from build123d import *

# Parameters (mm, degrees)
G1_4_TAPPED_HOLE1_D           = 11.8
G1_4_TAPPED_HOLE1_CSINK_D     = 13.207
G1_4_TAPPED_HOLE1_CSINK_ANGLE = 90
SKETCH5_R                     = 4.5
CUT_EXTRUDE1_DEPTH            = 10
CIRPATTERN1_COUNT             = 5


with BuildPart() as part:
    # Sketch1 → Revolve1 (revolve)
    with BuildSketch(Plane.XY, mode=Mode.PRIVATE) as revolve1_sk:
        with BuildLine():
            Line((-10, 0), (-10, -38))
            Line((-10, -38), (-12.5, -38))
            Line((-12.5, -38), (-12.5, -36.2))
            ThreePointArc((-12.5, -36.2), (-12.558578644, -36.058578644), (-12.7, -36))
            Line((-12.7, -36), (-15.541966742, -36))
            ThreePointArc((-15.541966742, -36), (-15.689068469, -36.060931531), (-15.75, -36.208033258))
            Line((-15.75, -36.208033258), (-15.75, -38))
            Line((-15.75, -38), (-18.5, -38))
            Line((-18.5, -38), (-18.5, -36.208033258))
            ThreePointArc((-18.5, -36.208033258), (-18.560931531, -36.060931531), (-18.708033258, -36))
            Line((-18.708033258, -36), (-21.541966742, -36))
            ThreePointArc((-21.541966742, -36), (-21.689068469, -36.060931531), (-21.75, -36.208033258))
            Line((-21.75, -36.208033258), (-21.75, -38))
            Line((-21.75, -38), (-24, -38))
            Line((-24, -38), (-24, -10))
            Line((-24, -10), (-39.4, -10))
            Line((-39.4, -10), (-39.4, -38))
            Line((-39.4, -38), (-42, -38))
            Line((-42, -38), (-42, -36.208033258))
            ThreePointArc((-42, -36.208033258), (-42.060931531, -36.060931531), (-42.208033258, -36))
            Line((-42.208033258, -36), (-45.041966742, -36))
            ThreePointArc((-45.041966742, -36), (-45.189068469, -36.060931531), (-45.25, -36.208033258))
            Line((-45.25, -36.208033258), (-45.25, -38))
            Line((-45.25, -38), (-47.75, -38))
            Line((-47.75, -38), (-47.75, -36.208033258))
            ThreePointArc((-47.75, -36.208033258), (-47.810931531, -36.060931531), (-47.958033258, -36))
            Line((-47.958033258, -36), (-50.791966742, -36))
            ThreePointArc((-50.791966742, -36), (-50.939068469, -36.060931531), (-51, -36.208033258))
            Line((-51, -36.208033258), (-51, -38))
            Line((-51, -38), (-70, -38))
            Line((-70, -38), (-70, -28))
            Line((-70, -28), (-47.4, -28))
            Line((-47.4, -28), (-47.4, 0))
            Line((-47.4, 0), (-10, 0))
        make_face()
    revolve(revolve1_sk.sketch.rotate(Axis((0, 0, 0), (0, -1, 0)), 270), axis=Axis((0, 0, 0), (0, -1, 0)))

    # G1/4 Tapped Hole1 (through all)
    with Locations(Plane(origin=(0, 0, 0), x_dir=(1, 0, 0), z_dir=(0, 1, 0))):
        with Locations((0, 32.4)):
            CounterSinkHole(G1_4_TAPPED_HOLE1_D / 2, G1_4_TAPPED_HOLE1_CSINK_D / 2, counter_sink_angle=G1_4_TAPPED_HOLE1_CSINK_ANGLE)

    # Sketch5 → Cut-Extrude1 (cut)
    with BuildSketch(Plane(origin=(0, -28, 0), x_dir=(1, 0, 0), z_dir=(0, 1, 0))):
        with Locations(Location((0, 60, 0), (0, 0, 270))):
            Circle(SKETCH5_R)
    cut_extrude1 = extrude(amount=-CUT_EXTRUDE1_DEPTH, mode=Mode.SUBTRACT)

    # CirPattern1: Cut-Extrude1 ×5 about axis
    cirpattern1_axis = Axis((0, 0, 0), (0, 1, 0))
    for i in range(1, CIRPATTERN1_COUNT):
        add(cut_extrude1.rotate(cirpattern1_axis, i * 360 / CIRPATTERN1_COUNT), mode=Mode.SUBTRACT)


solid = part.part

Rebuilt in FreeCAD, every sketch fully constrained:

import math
import FreeCAD as App
import Part
import Sketcher
Q = App.Units.Quantity

doc = App.newDocument("Part")
body = doc.addObject("PartDesign::Body", "Body")

sketch1 = body.newObject("Sketcher::SketchObject", "Sketch")
sketch1.AttachmentSupport = (doc.getObject("XY_Plane"), [""])
sketch1.MapMode = "FlatFace"
sketch1.addGeometry([
    Part.LineSegment(App.Vector(-10, -38, 0), App.Vector(-10, 0, 0)),
    Part.LineSegment(App.Vector(-10, 0, 0), App.Vector(-47.4, 0, 0)),
    Part.LineSegment(App.Vector(-47.4, 0, 0), App.Vector(-47.4, -28, 0)),
    Part.LineSegment(App.Vector(-47.4, -28, 0), App.Vector(-70, -28, 0)),
    Part.LineSegment(App.Vector(-70, -28, 0), App.Vector(-70, -38, 0)),
    Part.LineSegment(App.Vector(-70, -38, 0), App.Vector(-51, -38, 0)),
    Part.LineSegment(App.Vector(-51, -38, 0), App.Vector(-51, -36.21, 0)),
    Part.ArcOfCircle(Part.Circle(App.Vector(-50.79, -36.21, 0), App.Vector(0, 0, 1), 0.21), math.radians(90), math.radians(180)),
    Part.LineSegment(App.Vector(-50.79, -36, 0), App.Vector(-47.96, -36, 0)),
    Part.ArcOfCircle(Part.Circle(App.Vector(-47.96, -36.21, 0), App.Vector(0, 0, 1), 0.21), math.radians(0), math.radians(90)),
    Part.LineSegment(App.Vector(-47.75, -36.21, 0), App.Vector(-47.75, -38, 0)),
    Part.LineSegment(App.Vector(-47.75, -38, 0), App.Vector(-45.25, -38, 0)),
    Part.LineSegment(App.Vector(-45.25, -38, 0), App.Vector(-45.25, -36.21, 0)),
    Part.ArcOfCircle(Part.Circle(App.Vector(-45.04, -36.21, 0), App.Vector(0, 0, 1), 0.21), math.radians(90), math.radians(180)),
    Part.LineSegment(App.Vector(-45.04, -36, 0), App.Vector(-42.21, -36, 0)),
    Part.ArcOfCircle(Part.Circle(App.Vector(-42.21, -36.21, 0), App.Vector(0, 0, 1), 0.21), math.radians(0), math.radians(90)),
    Part.LineSegment(App.Vector(-42, -36.21, 0), App.Vector(-42, -38, 0)),
    Part.LineSegment(App.Vector(-42, -38, 0), App.Vector(-39.4, -38, 0)),
    Part.LineSegment(App.Vector(-39.4, -38, 0), App.Vector(-39.4, -10, 0)),
    Part.LineSegment(App.Vector(-39.4, -10, 0), App.Vector(-24, -10, 0)),
    Part.LineSegment(App.Vector(-24, -10, 0), App.Vector(-24, -38, 0)),
    Part.LineSegment(App.Vector(-24, -38, 0), App.Vector(-21.75, -38, 0)),
    Part.LineSegment(App.Vector(-21.75, -38, 0), App.Vector(-21.75, -36.21, 0)),
    Part.ArcOfCircle(Part.Circle(App.Vector(-21.54, -36.21, 0), App.Vector(0, 0, 1), 0.21), math.radians(90), math.radians(180)),
    Part.LineSegment(App.Vector(-21.54, -36, 0), App.Vector(-18.71, -36, 0)),
    Part.ArcOfCircle(Part.Circle(App.Vector(-18.71, -36.21, 0), App.Vector(0, 0, 1), 0.21), math.radians(0), math.radians(90)),
    Part.LineSegment(App.Vector(-18.5, -36.21, 0), App.Vector(-18.5, -38, 0)),
    Part.LineSegment(App.Vector(-18.5, -38, 0), App.Vector(-15.75, -38, 0)),
    Part.LineSegment(App.Vector(-15.75, -38, 0), App.Vector(-15.75, -36.21, 0)),
    Part.ArcOfCircle(Part.Circle(App.Vector(-15.54, -36.21, 0), App.Vector(0, 0, 1), 0.21), math.radians(90), math.radians(180)),
    Part.LineSegment(App.Vector(-15.54, -36, 0), App.Vector(-12.7, -36, 0)),
    Part.ArcOfCircle(Part.Circle(App.Vector(-12.7, -36.2, 0), App.Vector(0, 0, 1), 0.2), math.radians(0), math.radians(90)),
    Part.LineSegment(App.Vector(-12.5, -36.2, 0), App.Vector(-12.5, -38, 0)),
    Part.LineSegment(App.Vector(-12.5, -38, 0), App.Vector(-10, -38, 0)),
], False)
sketch1.addConstraint([
    Sketcher.Constraint("Coincident", 0, 2, 1, 1),
    Sketcher.Constraint("Coincident", 1, 2, 2, 1),
    Sketcher.Constraint("Coincident", 2, 2, 3, 1),
    Sketcher.Constraint("Coincident", 3, 2, 4, 1),
    Sketcher.Constraint("Coincident", 4, 2, 5, 1),
    Sketcher.Constraint("Coincident", 5, 2, 6, 1),
    Sketcher.Constraint("Tangent", 6, 2, 7, 2),
    Sketcher.Constraint("Tangent", 7, 1, 8, 1),
    Sketcher.Constraint("Tangent", 8, 2, 9, 2),
    Sketcher.Constraint("Tangent", 9, 1, 10, 1),
    Sketcher.Constraint("Coincident", 10, 2, 11, 1),
    Sketcher.Constraint("Coincident", 11, 2, 12, 1),
    Sketcher.Constraint("Tangent", 12, 2, 13, 2),
    Sketcher.Constraint("Tangent", 13, 1, 14, 1),
    Sketcher.Constraint("Tangent", 14, 2, 15, 2),
    Sketcher.Constraint("Tangent", 15, 1, 16, 1),
    Sketcher.Constraint("Coincident", 16, 2, 17, 1),
    Sketcher.Constraint("Coincident", 17, 2, 18, 1),
    Sketcher.Constraint("Coincident", 18, 2, 19, 1),
    Sketcher.Constraint("Coincident", 19, 2, 20, 1),
    Sketcher.Constraint("Coincident", 20, 2, 21, 1),
    Sketcher.Constraint("Coincident", 21, 2, 22, 1),
    Sketcher.Constraint("Tangent", 22, 2, 23, 2),
    Sketcher.Constraint("Tangent", 23, 1, 24, 1),
    Sketcher.Constraint("Tangent", 24, 2, 25, 2),
    Sketcher.Constraint("Tangent", 25, 1, 26, 1),
    Sketcher.Constraint("Coincident", 26, 2, 27, 1),
    Sketcher.Constraint("Coincident", 27, 2, 28, 1),
    Sketcher.Constraint("Tangent", 28, 2, 29, 2),
    Sketcher.Constraint("Tangent", 29, 1, 30, 1),
    Sketcher.Constraint("Tangent", 30, 2, 31, 2),
    Sketcher.Constraint("Tangent", 31, 1, 32, 1),
    Sketcher.Constraint("Coincident", 32, 2, 33, 1),
    Sketcher.Constraint("Coincident", 33, 2, 0, 1),
    Sketcher.Constraint("Vertical", 0),
    Sketcher.Constraint("Horizontal", 1),
    Sketcher.Constraint("Vertical", 2),
    Sketcher.Constraint("Horizontal", 3),
    Sketcher.Constraint("Vertical", 4),
    Sketcher.Constraint("Horizontal", 5),
    Sketcher.Constraint("Vertical", 6),
    Sketcher.Constraint("Horizontal", 8),
    Sketcher.Constraint("Vertical", 10),
    Sketcher.Constraint("Horizontal", 11),
    Sketcher.Constraint("Vertical", 12),
    Sketcher.Constraint("Horizontal", 14),
    Sketcher.Constraint("Vertical", 16),
    Sketcher.Constraint("Horizontal", 17),
    Sketcher.Constraint("Vertical", 18),
    Sketcher.Constraint("Horizontal", 19),
    Sketcher.Constraint("Vertical", 20),
    Sketcher.Constraint("Horizontal", 21),
    Sketcher.Constraint("Vertical", 22),
    Sketcher.Constraint("Horizontal", 24),
    Sketcher.Constraint("Vertical", 26),
    Sketcher.Constraint("Horizontal", 27),
    Sketcher.Constraint("Vertical", 28),
    Sketcher.Constraint("Horizontal", 30),
    Sketcher.Constraint("Vertical", 32),
    Sketcher.Constraint("Horizontal", 33),
    Sketcher.Constraint("Equal", 7, 9),
    Sketcher.Constraint("Equal", 9, 13),
    Sketcher.Constraint("Equal", 13, 15),
    Sketcher.Constraint("Equal", 15, 23),
    Sketcher.Constraint("Equal", 23, 25),
    Sketcher.Constraint("Equal", 25, 29),
    Sketcher.Constraint("PointOnObject", 0, 2, -1),
    Sketcher.Constraint("Horizontal", 9, 3, 13, 3),
    Sketcher.Constraint("Horizontal", 15, 3, 23, 3),
    Sketcher.Constraint("Horizontal", 25, 3, 29, 3),
    Sketcher.Constraint("Horizontal", 5, 2, 10, 2),
    Sketcher.Constraint("Horizontal", 11, 2, 16, 2),
    Sketcher.Constraint("Horizontal", 17, 2, 20, 2),
    Sketcher.Constraint("Horizontal", 21, 2, 26, 2),
    Sketcher.Constraint("Horizontal", 27, 2, 32, 2),
    Sketcher.Constraint("Equal", 8, 14),
    Sketcher.Constraint("Equal", 14, 24),
    Sketcher.Constraint("Equal", 11, 33),
    Sketcher.Constraint("Equal", 2, 18),
    Sketcher.Constraint("Radius", 31, Q("0.2 mm")),
    Sketcher.Constraint("DistanceX", 5, 1, 5, 2, Q("19 mm")),
    Sketcher.Constraint("DistanceY", 0, 1, 0, 2, Q("38 mm")),
    Sketcher.Constraint("DistanceY", 2, 2, 2, 1, Q("28 mm")),
    Sketcher.Constraint("DistanceX", 1, 2, 1, 1, Q("37.4 mm")),
    Sketcher.Constraint("DistanceX", 3, 2, 3, 1, Q("22.6 mm")),
    Sketcher.Constraint("DistanceX", 11, 1, 11, 2, Q("2.5 mm")),
    Sketcher.Constraint("DistanceX", 17, 1, 17, 2, Q("2.6 mm")),
    Sketcher.Constraint("DistanceX", 19, 1, 19, 2, Q("15.4 mm")),
    Sketcher.Constraint("DistanceY", 32, 2, 32, 1, Q("1.8 mm")),
    Sketcher.Constraint("DistanceX", 0, 2, -1, 1, Q("10 mm")),
    Sketcher.Constraint("DistanceX", 15, 1, -1, 1, Q("42 mm")),
    Sketcher.Constraint("DistanceX", 23, 3, 29, 3, Q("6 mm")),
    Sketcher.Constraint("DistanceX", 21, 1, 21, 2, Q("2.25 mm")),
    Sketcher.Constraint("Radius", 7, Q("0.208033 mm")),
])
revolution = body.newObject("PartDesign::Revolution", "Revolution")
revolution.Profile = sketch1
revolution.ReferenceAxis = (sketch1, ["V_Axis"])
revolution.Angle = 360

sketch2 = body.newObject("Sketcher::SketchObject", "Sketch001")
sketch2.AttachmentSupport = (doc.getObject("XZ_Plane"), [""])
sketch2.MapMode = "FlatFace"
sketch2.addGeometry(Part.Circle(App.Vector(0, -32, 0), App.Vector(0, 0, 1), 6), False)
sketch2.addConstraint([
    Sketcher.Constraint("PointOnObject", 0, 3, -2),
    Sketcher.Constraint("Diameter", 0, Q("11.8 mm")),
    Sketcher.Constraint("DistanceY", 0, 3, -1, 1, Q("32.4 mm")),
])
doc.recompute()
hole = body.newObject("PartDesign::Hole", "Hole")
hole.Profile = sketch2
hole.ThreadType = "None"
hole.Diameter = 11.8
hole.DepthType = "ThroughAll"
hole.HoleCutType = "Countersink"
hole.HoleCutDiameter = 13.207
hole.HoleCutCountersinkAngle = 90
hole.Reversed = True

sketch3 = body.newObject("Sketcher::SketchObject", "Sketch002")
sketch3.AttachmentSupport = (doc.getObject("XZ_Plane"), [""])
sketch3.MapMode = "FlatFace"
sketch3.AttachmentOffset = App.Placement(App.Vector(0, 0, 28), App.Rotation())
sketch3.addGeometry(Part.Circle(App.Vector(0, -60, 0), App.Vector(0, 0, 1), 4.5), False)
sketch3.addConstraint([
    Sketcher.Constraint("PointOnObject", 0, 3, -2),
    Sketcher.Constraint("Diameter", 0, Q("9 mm")),
    Sketcher.Constraint("DistanceY", 0, 3, -1, 1, Q("60 mm")),
])
pocket1 = body.newObject("PartDesign::Pocket", "Pocket")
pocket1.Profile = sketch3
pocket1.Length = 10
pocket1.Reversed = True
doc.recompute()

polarpattern = body.newObject("PartDesign::PolarPattern", "PolarPattern")
polarpattern.Originals = [pocket1]
polarpattern.Axis = (doc.getObject("Y_Axis"), [""])
polarpattern.Angle = 360
polarpattern.Occurrences = 5
body.Tip = polarpattern

doc.recompute()
